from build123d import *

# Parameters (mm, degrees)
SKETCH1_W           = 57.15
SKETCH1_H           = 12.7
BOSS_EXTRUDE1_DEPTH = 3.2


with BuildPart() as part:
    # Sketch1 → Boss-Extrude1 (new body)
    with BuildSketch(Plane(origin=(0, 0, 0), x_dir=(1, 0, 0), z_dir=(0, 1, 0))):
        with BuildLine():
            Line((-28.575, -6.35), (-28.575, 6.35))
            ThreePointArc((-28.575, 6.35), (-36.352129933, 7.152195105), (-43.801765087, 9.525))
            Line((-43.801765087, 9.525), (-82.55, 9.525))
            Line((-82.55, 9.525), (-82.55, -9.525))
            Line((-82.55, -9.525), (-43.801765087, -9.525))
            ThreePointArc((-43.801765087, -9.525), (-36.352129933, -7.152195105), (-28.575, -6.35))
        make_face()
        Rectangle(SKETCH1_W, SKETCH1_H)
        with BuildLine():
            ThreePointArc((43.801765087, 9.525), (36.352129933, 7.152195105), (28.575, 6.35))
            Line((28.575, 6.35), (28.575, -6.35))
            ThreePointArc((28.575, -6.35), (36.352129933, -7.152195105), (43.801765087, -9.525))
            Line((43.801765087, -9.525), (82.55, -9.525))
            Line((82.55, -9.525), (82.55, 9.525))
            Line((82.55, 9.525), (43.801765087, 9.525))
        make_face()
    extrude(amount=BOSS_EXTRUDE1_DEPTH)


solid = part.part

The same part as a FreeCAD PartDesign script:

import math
import FreeCAD as App
import Part
import Sketcher
Q = App.Units.Quantity

doc = App.newDocument("Part")
body = doc.addObject("PartDesign::Body", "Body")

sketch1 = doc.addObject("Sketcher::SketchObject", "Sketch")
body.addObject(sketch1)
sketch1.AttachmentSupport = (doc.XZ_Plane, [""])
sketch1.MapMode = "FlatFace"
sketch1.addGeometry([
    Part.ArcOfCircle(Part.Circle(App.Vector(-28.575, -44.45, 0), App.Vector(0, 0, 1), 38.1), math.radians(90), math.radians(113.556464)),
    Part.LineSegment(App.Vector(-43.801765, -9.525, 0), App.Vector(-82.55, -9.525, 0)),
    Part.LineSegment(App.Vector(-82.55, -9.525, 0), App.Vector(-82.55, 9.525, 0)),
    Part.LineSegment(App.Vector(-82.55, 9.525, 0), App.Vector(-43.801765, 9.525, 0)),
    Part.ArcOfCircle(Part.Circle(App.Vector(-28.575, 44.45, 0), App.Vector(0, 0, 1), 38.1), math.radians(-113.556464), math.radians(-90)),
    Part.LineSegment(App.Vector(-28.575, 6.35, 0), App.Vector(28.575, 6.35, 0)),
    Part.ArcOfCircle(Part.Circle(App.Vector(28.575, 44.45, 0), App.Vector(0, 0, 1), 38.1), math.radians(-90), math.radians(-66.443536)),
    Part.LineSegment(App.Vector(43.801765, 9.525, 0), App.Vector(82.55, 9.525, 0)),
    Part.LineSegment(App.Vector(82.55, 9.525, 0), App.Vector(82.55, -9.525, 0)),
    Part.LineSegment(App.Vector(82.55, -9.525, 0), App.Vector(43.801765, -9.525, 0)),
    Part.ArcOfCircle(Part.Circle(App.Vector(28.575, -44.45, 0), App.Vector(0, 0, 1), 38.1), math.radians(66.443536), math.radians(90)),
    Part.LineSegment(App.Vector(28.575, -6.35, 0), App.Vector(-28.575, -6.35, 0)),
], False)
sketch1.addConstraint([
    Sketcher.Constraint("Coincident", 0, 2, 1, 1),
    Sketcher.Constraint("Coincident", 1, 2, 2, 1),
    Sketcher.Constraint("Coincident", 2, 2, 3, 1),
    Sketcher.Constraint("Coincident", 3, 2, 4, 1),
    Sketcher.Constraint("Tangent", 4, 2, 5, 1),
    Sketcher.Constraint("Tangent", 5, 2, 6, 1),
    Sketcher.Constraint("Coincident", 6, 2, 7, 1),
    Sketcher.Constraint("Coincident", 7, 2, 8, 1),
    Sketcher.Constraint("Coincident", 8, 2, 9, 1),
    Sketcher.Constraint("Coincident", 9, 2, 10, 1),
    Sketcher.Constraint("Tangent", 10, 2, 11, 1),
    Sketcher.Constraint("Tangent", 11, 2, 0, 1),
    Sketcher.Constraint("Horizontal", 1),
    Sketcher.Constraint("Vertical", 2),
    Sketcher.Constraint("Horizontal", 3),
    Sketcher.Constraint("Horizontal", 5),
    Sketcher.Constraint("Horizontal", 7),
    Sketcher.Constraint("Vertical", 8),
    Sketcher.Constraint("Horizontal", 9),
    Sketcher.Constraint("Horizontal", 11),
    Sketcher.Constraint("Equal", 0, 4),
    Sketcher.Constraint("Equal", 4, 6),
    Sketcher.Constraint("Equal", 6, 10),
    Sketcher.Constraint("Symmetric", 0, 3, 6, 3, -1, 1),
    Sketcher.Constraint("Symmetric", 1, 2, 7, 2, -1, 1),
    Sketcher.Constraint("Symmetric", 3, 2, 9, 2, -1, 1),
    Sketcher.Constraint("Symmetric", 3, 2, 6, 2, -2),
    Sketcher.Constraint("Radius", 0, Q("1.5 in")),
    Sketcher.Constraint("DistanceY", 0, 3, 4, 2, Q("2 in")),
    Sketcher.Constraint("DistanceX", 5, 1, 5, 2, Q("2.25 in")),
    Sketcher.Constraint("DistanceY", 2, 1, 2, 2, Q("0.75 in")),
    Sketcher.Constraint("DistanceX", 1, 2, -1, 1, Q("3.25 in")),
])
pad1 = doc.addObject("PartDesign::Pad", "Pad")
body.addObject(pad1)
pad1.Profile = sketch1
pad1.Length = 3.2
pad1.Reversed = True

doc.recompute()
